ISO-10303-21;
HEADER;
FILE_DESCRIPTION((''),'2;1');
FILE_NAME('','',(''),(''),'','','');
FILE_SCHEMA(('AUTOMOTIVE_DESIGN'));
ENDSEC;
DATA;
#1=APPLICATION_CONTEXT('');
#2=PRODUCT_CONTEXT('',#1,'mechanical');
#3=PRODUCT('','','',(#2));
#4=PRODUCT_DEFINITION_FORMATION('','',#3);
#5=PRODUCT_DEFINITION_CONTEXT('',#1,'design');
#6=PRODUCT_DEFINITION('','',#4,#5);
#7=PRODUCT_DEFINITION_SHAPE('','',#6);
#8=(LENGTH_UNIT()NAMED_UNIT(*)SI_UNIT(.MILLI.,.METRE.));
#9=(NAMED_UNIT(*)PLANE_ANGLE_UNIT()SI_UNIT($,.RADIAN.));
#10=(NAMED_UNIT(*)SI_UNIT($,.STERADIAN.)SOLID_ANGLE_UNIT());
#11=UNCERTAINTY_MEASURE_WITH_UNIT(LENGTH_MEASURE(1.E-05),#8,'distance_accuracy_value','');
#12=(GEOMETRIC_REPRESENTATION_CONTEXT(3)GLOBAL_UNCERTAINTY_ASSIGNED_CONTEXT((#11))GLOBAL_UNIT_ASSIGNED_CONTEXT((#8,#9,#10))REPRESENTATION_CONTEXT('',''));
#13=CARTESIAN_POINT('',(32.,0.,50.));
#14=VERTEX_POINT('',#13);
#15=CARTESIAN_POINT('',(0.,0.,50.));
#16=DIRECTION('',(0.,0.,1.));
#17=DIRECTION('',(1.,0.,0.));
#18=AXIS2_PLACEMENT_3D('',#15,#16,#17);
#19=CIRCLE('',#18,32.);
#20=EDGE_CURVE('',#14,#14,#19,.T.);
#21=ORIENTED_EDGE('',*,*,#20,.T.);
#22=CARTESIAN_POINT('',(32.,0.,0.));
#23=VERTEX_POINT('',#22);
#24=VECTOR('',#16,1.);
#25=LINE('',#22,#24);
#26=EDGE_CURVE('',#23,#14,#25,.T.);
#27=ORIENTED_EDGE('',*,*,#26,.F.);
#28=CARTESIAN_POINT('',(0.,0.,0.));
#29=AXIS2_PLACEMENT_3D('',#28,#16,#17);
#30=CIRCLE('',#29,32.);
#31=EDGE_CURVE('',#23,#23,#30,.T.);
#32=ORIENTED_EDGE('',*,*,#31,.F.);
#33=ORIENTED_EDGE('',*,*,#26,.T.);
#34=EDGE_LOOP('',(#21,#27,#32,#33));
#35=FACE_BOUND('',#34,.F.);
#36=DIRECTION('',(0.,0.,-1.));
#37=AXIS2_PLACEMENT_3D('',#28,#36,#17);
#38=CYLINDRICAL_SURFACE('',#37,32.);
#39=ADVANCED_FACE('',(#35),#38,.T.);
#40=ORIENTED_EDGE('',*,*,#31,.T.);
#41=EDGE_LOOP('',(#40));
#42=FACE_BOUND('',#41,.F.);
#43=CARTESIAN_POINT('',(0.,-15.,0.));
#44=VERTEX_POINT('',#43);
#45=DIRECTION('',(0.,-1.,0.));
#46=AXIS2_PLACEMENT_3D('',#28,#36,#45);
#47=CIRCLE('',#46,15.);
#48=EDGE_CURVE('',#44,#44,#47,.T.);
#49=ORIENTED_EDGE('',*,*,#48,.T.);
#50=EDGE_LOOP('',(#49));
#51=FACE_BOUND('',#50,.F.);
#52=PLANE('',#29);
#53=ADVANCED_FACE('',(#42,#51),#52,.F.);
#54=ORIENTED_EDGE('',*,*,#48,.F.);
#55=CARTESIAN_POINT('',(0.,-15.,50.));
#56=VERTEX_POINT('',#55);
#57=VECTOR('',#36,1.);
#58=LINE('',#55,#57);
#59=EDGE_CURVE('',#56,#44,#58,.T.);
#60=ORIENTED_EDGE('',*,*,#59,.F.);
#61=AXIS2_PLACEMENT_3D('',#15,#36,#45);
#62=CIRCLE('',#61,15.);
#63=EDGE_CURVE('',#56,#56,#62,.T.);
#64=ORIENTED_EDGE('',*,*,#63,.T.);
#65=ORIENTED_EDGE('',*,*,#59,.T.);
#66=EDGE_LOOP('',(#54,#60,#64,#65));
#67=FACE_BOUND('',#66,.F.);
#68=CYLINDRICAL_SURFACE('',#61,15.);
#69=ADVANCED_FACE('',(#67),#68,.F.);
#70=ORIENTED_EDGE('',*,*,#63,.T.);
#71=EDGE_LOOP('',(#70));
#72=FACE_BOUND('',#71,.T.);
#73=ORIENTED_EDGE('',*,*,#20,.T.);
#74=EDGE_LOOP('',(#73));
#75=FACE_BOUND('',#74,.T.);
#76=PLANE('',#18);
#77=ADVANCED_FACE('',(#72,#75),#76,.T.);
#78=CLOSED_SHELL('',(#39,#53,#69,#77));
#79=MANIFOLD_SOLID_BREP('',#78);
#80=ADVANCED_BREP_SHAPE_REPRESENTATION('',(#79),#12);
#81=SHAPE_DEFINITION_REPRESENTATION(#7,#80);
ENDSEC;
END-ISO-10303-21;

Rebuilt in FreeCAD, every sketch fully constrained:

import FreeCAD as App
import Part
import Sketcher

doc = App.newDocument("Part")
body = doc.addObject("PartDesign::Body", "Body")

sketch1 = doc.addObject("Sketcher::SketchObject", "Sketch")
body.addObject(sketch1)
sketch1.AttachmentSupport = (doc.XY_Plane, [""])
sketch1.MapMode = "FlatFace"
sketch1.addGeometry(Part.Circle(App.Vector(0, 0, 0), App.Vector(0, 0, 1), 32), False)
sketch1.addConstraint([
    Sketcher.Constraint("Coincident", 0, 3, -1, 1),
    Sketcher.Constraint("Diameter", 0, 64.0),
])
pad1 = doc.addObject("PartDesign::Pad", "Pad")
body.addObject(pad1)
pad1.Profile = sketch1
pad1.Length = 50

sketch2 = doc.addObject("Sketcher::SketchObject", "Sketch001")
body.addObject(sketch2)
sketch2.AttachmentSupport = (doc.XY_Plane, [""])
sketch2.MapMode = "FlatFace"
sketch2.AttachmentOffset = App.Placement(App.Vector(0, 0, 50), App.Rotation())
sketch2.addGeometry(Part.Circle(App.Vector(0, 0, 0), App.Vector(0, 0, 1), 15), False)
sketch2.addConstraint([
    Sketcher.Constraint("Coincident", 0, 3, -1, 1),
    Sketcher.Constraint("Diameter", 0, 30.0),
])
doc.recompute()
hole = doc.addObject("PartDesign::Hole", "Hole")
body.addObject(hole)
hole.Profile = sketch2
hole.ThreadType = "None"
hole.Diameter = 30
hole.DepthType = "ThroughAll"

doc.recompute()
